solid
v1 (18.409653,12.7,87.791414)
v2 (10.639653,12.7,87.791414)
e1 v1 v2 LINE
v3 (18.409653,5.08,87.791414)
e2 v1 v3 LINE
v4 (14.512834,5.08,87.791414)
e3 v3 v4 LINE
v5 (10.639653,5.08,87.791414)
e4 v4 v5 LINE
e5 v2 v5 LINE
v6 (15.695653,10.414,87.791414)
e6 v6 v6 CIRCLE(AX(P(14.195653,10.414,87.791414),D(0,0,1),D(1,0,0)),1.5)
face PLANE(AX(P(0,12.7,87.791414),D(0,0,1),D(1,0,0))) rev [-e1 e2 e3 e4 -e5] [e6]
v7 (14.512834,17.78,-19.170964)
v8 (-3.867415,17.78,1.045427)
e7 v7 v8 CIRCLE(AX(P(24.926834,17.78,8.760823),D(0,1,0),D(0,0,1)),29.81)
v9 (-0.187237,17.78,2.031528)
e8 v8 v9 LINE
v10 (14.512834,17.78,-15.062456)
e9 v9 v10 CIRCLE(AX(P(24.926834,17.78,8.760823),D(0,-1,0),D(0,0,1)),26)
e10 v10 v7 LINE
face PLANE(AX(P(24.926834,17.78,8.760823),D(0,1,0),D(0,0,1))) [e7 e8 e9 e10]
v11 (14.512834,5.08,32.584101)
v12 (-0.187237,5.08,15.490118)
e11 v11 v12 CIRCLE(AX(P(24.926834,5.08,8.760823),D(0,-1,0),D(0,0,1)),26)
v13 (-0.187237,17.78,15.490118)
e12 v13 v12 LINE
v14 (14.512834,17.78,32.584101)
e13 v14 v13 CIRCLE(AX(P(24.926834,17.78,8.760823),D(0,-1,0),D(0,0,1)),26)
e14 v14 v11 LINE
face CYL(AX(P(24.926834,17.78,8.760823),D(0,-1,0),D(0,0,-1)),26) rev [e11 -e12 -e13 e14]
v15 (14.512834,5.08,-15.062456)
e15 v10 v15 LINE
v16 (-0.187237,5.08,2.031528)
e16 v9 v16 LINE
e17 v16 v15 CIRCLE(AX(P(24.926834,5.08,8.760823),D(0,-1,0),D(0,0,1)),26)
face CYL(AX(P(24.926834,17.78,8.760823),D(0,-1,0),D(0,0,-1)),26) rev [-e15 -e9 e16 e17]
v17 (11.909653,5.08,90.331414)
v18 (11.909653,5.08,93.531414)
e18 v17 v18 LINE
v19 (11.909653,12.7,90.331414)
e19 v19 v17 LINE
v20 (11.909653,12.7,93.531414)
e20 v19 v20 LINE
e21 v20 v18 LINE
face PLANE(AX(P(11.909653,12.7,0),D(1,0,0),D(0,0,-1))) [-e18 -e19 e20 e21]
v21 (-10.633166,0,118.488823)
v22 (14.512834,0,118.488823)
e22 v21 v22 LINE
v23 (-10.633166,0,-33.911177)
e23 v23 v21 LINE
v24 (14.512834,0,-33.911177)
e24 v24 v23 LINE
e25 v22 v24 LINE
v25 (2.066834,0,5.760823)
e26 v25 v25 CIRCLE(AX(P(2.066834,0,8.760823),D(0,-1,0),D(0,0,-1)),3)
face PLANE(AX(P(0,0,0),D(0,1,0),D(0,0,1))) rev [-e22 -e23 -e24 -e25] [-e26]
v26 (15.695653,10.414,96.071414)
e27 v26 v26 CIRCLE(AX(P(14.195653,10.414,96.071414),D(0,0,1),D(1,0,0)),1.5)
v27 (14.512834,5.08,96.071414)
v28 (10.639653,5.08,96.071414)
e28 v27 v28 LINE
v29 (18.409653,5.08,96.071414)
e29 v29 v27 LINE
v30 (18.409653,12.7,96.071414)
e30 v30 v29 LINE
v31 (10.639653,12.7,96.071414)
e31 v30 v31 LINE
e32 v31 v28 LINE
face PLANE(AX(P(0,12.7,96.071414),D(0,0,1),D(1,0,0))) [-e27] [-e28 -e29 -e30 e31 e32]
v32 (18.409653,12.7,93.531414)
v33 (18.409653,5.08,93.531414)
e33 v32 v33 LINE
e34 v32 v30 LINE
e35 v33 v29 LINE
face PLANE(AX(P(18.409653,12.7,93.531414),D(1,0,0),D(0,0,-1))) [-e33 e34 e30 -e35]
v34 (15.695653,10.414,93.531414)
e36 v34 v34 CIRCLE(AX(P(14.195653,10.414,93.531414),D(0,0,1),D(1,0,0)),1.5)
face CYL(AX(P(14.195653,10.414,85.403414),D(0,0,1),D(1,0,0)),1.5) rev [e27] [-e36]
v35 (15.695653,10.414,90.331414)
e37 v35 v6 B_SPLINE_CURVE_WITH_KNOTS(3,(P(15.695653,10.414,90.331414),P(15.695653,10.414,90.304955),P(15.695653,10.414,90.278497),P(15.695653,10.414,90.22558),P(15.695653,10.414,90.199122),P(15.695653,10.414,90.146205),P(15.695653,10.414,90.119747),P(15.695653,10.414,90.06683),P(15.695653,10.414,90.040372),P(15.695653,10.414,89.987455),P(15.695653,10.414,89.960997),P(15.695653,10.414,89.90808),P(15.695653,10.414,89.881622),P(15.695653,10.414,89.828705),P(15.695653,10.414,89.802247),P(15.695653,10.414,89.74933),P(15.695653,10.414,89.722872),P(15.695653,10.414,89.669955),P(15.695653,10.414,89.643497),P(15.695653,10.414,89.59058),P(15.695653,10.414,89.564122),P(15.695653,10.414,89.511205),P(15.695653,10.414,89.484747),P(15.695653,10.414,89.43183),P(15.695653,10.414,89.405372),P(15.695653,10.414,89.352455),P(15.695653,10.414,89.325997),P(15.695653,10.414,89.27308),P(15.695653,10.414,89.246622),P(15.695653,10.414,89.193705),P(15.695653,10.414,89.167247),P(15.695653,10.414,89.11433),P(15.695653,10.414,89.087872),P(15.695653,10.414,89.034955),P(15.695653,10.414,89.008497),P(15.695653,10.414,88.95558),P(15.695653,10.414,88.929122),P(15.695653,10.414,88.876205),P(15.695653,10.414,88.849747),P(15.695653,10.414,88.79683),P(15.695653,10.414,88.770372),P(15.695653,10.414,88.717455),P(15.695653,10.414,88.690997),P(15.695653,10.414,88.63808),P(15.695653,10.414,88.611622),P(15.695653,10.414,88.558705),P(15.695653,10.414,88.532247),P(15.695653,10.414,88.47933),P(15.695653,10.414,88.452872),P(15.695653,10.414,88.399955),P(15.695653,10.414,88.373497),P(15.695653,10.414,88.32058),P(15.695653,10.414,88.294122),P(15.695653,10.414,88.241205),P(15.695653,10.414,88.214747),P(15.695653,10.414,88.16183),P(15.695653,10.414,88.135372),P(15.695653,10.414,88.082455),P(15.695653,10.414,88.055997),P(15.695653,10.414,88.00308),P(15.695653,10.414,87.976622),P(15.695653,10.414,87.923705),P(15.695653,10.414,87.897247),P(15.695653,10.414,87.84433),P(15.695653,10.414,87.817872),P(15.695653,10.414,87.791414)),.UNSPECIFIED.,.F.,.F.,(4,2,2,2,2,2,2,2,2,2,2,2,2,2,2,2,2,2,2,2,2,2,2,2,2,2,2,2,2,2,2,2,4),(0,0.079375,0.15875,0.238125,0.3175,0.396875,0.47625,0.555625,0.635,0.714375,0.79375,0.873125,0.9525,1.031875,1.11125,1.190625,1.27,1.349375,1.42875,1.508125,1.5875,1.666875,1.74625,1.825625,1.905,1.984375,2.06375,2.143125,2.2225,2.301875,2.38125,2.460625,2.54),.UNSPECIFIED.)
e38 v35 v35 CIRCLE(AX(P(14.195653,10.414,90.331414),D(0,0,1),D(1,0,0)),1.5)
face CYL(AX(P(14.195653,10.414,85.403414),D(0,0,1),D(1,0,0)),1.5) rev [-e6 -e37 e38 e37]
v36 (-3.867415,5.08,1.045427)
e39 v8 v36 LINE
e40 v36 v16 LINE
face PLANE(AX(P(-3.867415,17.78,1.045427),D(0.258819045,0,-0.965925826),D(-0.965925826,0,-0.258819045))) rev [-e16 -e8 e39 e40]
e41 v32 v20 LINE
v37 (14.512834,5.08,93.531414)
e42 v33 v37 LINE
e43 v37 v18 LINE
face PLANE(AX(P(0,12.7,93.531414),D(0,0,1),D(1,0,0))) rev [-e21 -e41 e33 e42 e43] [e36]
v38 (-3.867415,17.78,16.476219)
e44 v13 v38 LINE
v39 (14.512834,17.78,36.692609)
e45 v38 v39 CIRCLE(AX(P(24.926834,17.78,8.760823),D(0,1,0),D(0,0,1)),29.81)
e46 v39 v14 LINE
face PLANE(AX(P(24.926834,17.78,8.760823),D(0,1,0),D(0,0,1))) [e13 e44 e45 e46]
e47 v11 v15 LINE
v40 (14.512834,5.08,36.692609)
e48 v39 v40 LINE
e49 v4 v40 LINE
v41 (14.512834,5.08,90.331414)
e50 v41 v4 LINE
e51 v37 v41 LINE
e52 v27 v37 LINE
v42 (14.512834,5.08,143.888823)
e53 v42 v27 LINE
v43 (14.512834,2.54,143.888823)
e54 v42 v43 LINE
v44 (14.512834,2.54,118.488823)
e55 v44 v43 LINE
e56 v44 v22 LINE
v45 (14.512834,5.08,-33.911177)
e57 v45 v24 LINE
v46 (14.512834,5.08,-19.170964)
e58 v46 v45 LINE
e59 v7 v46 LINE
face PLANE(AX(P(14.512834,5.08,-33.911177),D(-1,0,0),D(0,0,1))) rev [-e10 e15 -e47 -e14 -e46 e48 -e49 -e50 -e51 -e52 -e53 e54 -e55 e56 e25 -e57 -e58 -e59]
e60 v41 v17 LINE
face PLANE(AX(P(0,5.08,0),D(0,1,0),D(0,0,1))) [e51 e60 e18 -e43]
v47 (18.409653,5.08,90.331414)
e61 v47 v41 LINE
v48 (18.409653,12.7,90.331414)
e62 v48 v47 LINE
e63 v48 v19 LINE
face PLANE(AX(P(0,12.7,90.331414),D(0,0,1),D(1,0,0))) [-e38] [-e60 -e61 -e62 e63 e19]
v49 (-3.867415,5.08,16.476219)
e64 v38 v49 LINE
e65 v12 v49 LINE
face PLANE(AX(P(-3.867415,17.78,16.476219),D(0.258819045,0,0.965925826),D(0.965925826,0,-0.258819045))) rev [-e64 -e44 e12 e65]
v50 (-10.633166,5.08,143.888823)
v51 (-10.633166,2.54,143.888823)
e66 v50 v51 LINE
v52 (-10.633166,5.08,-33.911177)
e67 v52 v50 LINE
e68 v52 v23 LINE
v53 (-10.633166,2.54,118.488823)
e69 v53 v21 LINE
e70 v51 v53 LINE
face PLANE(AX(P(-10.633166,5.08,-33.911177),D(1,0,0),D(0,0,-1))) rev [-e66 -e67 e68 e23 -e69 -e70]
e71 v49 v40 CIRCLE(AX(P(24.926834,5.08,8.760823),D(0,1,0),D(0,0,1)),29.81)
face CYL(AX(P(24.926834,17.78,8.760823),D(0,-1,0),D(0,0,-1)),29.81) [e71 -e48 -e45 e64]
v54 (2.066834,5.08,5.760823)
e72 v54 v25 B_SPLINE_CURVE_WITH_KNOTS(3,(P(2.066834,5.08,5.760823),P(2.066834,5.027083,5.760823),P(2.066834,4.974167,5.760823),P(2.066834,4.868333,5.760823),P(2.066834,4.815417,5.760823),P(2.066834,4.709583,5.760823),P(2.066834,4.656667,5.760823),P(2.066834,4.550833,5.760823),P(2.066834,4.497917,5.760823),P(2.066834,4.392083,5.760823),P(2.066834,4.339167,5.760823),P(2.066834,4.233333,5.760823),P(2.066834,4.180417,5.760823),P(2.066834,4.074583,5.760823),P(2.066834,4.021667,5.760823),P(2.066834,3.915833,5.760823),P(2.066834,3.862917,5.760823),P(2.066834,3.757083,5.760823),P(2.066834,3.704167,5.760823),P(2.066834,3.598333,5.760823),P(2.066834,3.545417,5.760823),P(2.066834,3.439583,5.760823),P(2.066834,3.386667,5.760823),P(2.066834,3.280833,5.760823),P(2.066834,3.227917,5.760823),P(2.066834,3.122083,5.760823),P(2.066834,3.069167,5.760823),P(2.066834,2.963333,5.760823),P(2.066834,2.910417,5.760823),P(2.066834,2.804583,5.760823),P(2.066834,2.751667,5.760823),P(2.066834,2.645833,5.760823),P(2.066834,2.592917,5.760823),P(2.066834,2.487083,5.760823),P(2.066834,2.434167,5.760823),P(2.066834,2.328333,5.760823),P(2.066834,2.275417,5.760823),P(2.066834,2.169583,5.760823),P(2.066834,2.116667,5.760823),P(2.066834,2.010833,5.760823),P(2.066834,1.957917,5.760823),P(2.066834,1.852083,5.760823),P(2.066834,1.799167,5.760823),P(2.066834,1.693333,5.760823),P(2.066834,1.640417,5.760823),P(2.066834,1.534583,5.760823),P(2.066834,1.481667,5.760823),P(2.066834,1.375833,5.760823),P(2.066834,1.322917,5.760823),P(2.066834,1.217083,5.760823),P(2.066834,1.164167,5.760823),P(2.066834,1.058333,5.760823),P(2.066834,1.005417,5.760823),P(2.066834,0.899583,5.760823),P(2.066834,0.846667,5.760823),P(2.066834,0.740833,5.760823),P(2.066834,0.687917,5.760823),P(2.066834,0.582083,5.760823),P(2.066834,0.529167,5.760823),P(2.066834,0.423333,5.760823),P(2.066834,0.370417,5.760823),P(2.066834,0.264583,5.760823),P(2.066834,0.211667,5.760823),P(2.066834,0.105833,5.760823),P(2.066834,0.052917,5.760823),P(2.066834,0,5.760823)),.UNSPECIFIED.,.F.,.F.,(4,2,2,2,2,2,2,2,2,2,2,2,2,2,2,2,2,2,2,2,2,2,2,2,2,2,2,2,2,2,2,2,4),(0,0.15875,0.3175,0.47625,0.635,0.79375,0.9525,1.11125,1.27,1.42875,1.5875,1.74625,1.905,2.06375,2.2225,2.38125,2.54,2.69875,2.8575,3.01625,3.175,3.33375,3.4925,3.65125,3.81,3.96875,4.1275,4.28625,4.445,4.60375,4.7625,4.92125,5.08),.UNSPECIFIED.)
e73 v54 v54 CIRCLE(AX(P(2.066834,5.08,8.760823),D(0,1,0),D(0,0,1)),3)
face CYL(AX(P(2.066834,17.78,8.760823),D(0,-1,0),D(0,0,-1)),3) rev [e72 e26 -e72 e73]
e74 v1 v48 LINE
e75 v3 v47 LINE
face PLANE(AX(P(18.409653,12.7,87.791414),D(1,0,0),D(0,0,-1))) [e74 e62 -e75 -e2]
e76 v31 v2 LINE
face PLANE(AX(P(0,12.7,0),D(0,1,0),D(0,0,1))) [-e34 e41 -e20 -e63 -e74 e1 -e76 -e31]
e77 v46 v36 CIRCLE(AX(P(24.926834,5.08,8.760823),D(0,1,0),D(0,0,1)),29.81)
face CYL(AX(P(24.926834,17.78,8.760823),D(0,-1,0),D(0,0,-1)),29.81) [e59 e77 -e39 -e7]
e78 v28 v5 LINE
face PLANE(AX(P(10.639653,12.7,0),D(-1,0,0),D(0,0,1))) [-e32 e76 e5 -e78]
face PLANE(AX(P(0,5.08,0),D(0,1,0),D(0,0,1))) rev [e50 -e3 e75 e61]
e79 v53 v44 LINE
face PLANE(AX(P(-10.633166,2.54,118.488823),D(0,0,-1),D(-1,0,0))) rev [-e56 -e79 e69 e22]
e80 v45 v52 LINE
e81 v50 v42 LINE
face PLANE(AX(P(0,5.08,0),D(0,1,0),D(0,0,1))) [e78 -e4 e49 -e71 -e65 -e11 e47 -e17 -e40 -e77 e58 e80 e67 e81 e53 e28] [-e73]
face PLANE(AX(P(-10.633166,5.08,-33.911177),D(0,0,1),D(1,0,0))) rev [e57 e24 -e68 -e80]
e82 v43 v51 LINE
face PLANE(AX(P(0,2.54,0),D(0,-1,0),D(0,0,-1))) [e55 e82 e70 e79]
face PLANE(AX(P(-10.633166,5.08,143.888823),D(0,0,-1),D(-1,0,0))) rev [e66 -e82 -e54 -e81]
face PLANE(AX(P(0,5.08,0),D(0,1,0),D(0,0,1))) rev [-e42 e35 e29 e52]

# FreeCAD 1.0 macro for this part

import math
import FreeCAD as App
import Part
import Sketcher
Q = App.Units.Quantity


def add_polygon(sketch, points):
    """Adds a closed chain of lines whose ends are joined by coincident constraints."""
    first, n = sketch.GeometryCount, len(points)
    for a, b in zip(points, points[1:] + points[:1]):
        sketch.addGeometry(Part.LineSegment(App.Vector(*a, 0), App.Vector(*b, 0)), False)
    for i in range(n):
        sketch.addConstraint(Sketcher.Constraint("Coincident", first + i, 2, first + (i + 1) % n, 1))

doc = App.newDocument("Part")
body = doc.addObject("PartDesign::Body", "Body")

sketch1 = body.newObject("Sketcher::SketchObject", "Sketch")
sketch1.AttachmentSupport = (doc.getObject("XZ_Plane"), [""])
sketch1.MapMode = "FlatFace"
add_polygon(sketch1, [(-11, -34), (-11, 144), (15, 144), (15, -34)])
sketch1.addConstraint(Sketcher.Constraint("Vertical", 0))
sketch1.addConstraint(Sketcher.Constraint("Horizontal", 1))
sketch1.addConstraint(Sketcher.Constraint("Vertical", 2))
sketch1.addConstraint(Sketcher.Constraint("Horizontal", 3))
sketch1.addConstraint(Sketcher.Constraint("DistanceY", 0, 1, 0, 2, Q("7 in")))
sketch1.addConstraint(Sketcher.Constraint("DistanceX", 1, 1, 1, 2, Q("0.99 in")))
sketch1.addConstraint(Sketcher.Constraint("DistanceX", 0, 2, -1, 1, Q("10.633166 mm")))
sketch1.addConstraint(Sketcher.Constraint("DistanceY", -1, 1, 0, 2, Q("143.888823 mm")))
pad1 = body.newObject("PartDesign::Pad", "Pad")
pad1.Profile = sketch1
pad1.Length = Q("0.2 in")
pad1.Reversed = True

sketch2 = body.newObject("Sketcher::SketchObject", "Sketch001")
sketch2.AttachmentSupport = (doc.getObject("XZ_Plane"), [""])
sketch2.MapMode = "FlatFace"
add_polygon(sketch2, [(-11, 144), (-11, 118), (15, 118), (15, 144)])
sketch2.addConstraint(Sketcher.Constraint("Vertical", 0))
sketch2.addConstraint(Sketcher.Constraint("Horizontal", 1))
sketch2.addConstraint(Sketcher.Constraint("Vertical", 2))
sketch2.addConstraint(Sketcher.Constraint("Horizontal", 3))
sketch2.addConstraint(Sketcher.Constraint("DistanceY", 0, 2, 0, 1, Q("1 in")))
sketch2.addConstraint(Sketcher.Constraint("DistanceX", 1, 1, 1, 2, Q("0.99 in")))
sketch2.addConstraint(Sketcher.Constraint("DistanceX", 0, 2, -1, 1, Q("10.633166 mm")))
sketch2.addConstraint(Sketcher.Constraint("DistanceY", -1, 1, 0, 2, Q("118.488823 mm")))
pocket1 = body.newObject("PartDesign::Pocket", "Pocket")
pocket1.Profile = sketch2
pocket1.Length = Q("0.1 in")

sketch3 = body.newObject("Sketcher::SketchObject", "Sketch002")
sketch3.AttachmentSupport = (doc.getObject("XZ_Plane"), [""])
sketch3.MapMode = "FlatFace"
sketch3.AttachmentOffset = App.Placement(App.Vector(0, 0, -0.2 * 25.4), App.Rotation())
sketch3.addGeometry(Part.LineSegment(App.Vector(14.5, -15.1, 0), App.Vector(14.5, -19.2, 0)), False)
sketch3.addGeometry(Part.ArcOfCircle(Part.Circle(App.Vector(24.9, 8.8, 0), App.Vector(0, 0, 1), 29.8), math.radians(-165), math.radians(-110)), False)
sketch3.addGeometry(Part.LineSegment(App.Vector(-3.9, 1, 0), App.Vector(-0.2, 2, 0)), False)
sketch3.addGeometry(Part.ArcOfCircle(Part.Circle(App.Vector(24.9, 8.8, 0), App.Vector(0, 0, 1), 26), math.radians(-165), math.radians(-114)), False)
sketch3.addGeometry(Part.LineSegment(App.Vector(14.5, 36.7, 0), App.Vector(14.5, 32.6, 0)), False)
sketch3.addGeometry(Part.ArcOfCircle(Part.Circle(App.Vector(24.9, 8.8, 0), App.Vector(0, 0, 1), 26), math.radians(114), math.radians(165)), False)
sketch3.addGeometry(Part.LineSegment(App.Vector(-0.2, 15.5, 0), App.Vector(-3.9, 16.5, 0)), False)
sketch3.addGeometry(Part.ArcOfCircle(Part.Circle(App.Vector(24.9, 8.8, 0), App.Vector(0, 0, 1), 29.8), math.radians(110), math.radians(165)), False)
sketch3.addConstraint(Sketcher.Constraint("Coincident", 0, 2, 1, 2))
sketch3.addConstraint(Sketcher.Constraint("Coincident", 1, 1, 2, 1))
sketch3.addConstraint(Sketcher.Constraint("Coincident", 2, 2, 3, 1))
sketch3.addConstraint(Sketcher.Constraint("Coincident", 3, 2, 0, 1))
sketch3.addConstraint(Sketcher.Constraint("Coincident", 4, 2, 5, 1))
sketch3.addConstraint(Sketcher.Constraint("Coincident", 5, 2, 6, 1))
sketch3.addConstraint(Sketcher.Constraint("Coincident", 6, 2, 7, 2))
sketch3.addConstraint(Sketcher.Constraint("Coincident", 7, 1, 4, 1))
sketch3.addConstraint(Sketcher.Constraint("Vertical", 0))
sketch3.addConstraint(Sketcher.Constraint("Vertical", 4))
sketch3.addConstraint(Sketcher.Constraint("Coincident", 3, 3, 1, 3))
sketch3.addConstraint(Sketcher.Constraint("Coincident", 5, 3, 1, 3))
sketch3.addConstraint(Sketcher.Constraint("Coincident", 7, 3, 1, 3))
sketch3.addConstraint(Sketcher.Constraint("Equal", 3, 5))
sketch3.addConstraint(Sketcher.Constraint("Equal", 1, 7))
sketch3.addConstraint(Sketcher.Constraint("Vertical", 3, 2, 4, 2))
sketch3.addConstraint(Sketcher.Constraint("Vertical", 2, 2, 5, 2))
sketch3.addConstraint(Sketcher.Constraint("Vertical", 1, 1, 6, 2))
sketch3.addConstraint(Sketcher.Constraint("Angle", 2, Q("15 deg")))
sketch3.addConstraint(Sketcher.Constraint("Distance", 2, Q("0.15 in")))
sketch3.addConstraint(Sketcher.Constraint("Radius", 1, Q("29.81 mm")))
sketch3.addConstraint(Sketcher.Constraint("DistanceX", 0, 2, 1, 3, Q("0.41 in")))
sketch3.addConstraint(Sketcher.Constraint("DistanceY", -1, 1, 4, 2, Q("32.584101 mm")))
sketch3.addConstraint(Sketcher.Constraint("DistanceY", -1, 1, 5, 2, Q("15.490118 mm")))
sketch3.addConstraint(Sketcher.Constraint("DistanceX", -1, 1, 1, 3, Q("24.926834 mm")))
pad2 = body.newObject("PartDesign::Pad", "Pad001")
pad2.Profile = sketch3
pad2.Length = Q("0.5 in")
pad2.Reversed = True

sketch4 = body.newObject("Sketcher::SketchObject", "Sketch003")
sketch4.AttachmentSupport = (doc.getObject("XZ_Plane"), [""])
sketch4.MapMode = "FlatFace"
sketch4.addGeometry(Part.Circle(App.Vector(2.1, 8.8, 0), App.Vector(0, 0, 1), 3), False)
sketch4.addConstraint(Sketcher.Constraint("Diameter", 0, Q("6 mm")))
sketch4.addConstraint(Sketcher.Constraint("DistanceX", -1, 1, 0, 3, Q("2.066834 mm")))
sketch4.addConstraint(Sketcher.Constraint("DistanceY", -1, 1, 0, 3, Q("8.760823 mm")))
pocket2 = body.newObject("PartDesign::Pocket", "Pocket001")
pocket2.Profile = sketch4
pocket2.Type = "ThroughAll"

sketch5 = body.newObject("Sketcher::SketchObject", "Sketch004")
sketch5.AttachmentSupport = (doc.getObject("XZ_Plane"), [""])
sketch5.MapMode = "FlatFace"
sketch5.AttachmentOffset = App.Placement(App.Vector(0, 0, -0.2 * 25.4), App.Rotation())
add_polygon(sketch5, [(18.4, 90.3), (18.4, 87.8), (10.6, 87.8), (10.6, 96.1), (18.4, 96.1), (18.4, 93.5), (11.9, 93.5), (11.9, 90.3)])
sketch5.addConstraint(Sketcher.Constraint("Vertical", 0))
sketch5.addConstraint(Sketcher.Constraint("Horizontal", 1))
sketch5.addConstraint(Sketcher.Constraint("Vertical", 2))
sketch5.addConstraint(Sketcher.Constraint("Horizontal", 3))
sketch5.addConstraint(Sketcher.Constraint("Vertical", 4))
sketch5.addConstraint(Sketcher.Constraint("Horizontal", 5))
sketch5.addConstraint(Sketcher.Constraint("Vertical", 6))
sketch5.addConstraint(Sketcher.Constraint("Horizontal", 7))
sketch5.addConstraint(Sketcher.Constraint("Vertical", 0, 2, 3, 2))
sketch5.addConstraint(Sketcher.Constraint("Equal", 0, 4))
sketch5.addConstraint(Sketcher.Constraint("DistanceY", 0, 2, 0, 1, Q("0.1 in")))
sketch5.addConstraint(Sketcher.Constraint("DistanceX", 2, 2, 5, 2, Q("0.05 in")))
sketch5.addConstraint(Sketcher.Constraint("DistanceX", 1, 2, 1, 1, Q("7.77 mm")))
sketch5.addConstraint(Sketcher.Constraint("DistanceY", 2, 1, 2, 2, Q("8.28 mm")))
sketch5.addConstraint(Sketcher.Constraint("DistanceX", -1, 1, 0, 2, Q("18.409653 mm")))
sketch5.addConstraint(Sketcher.Constraint("DistanceY", -1, 1, 0, 2, Q("87.791414 mm")))
pad3 = body.newObject("PartDesign::Pad", "Pad002")
pad3.Profile = sketch5
pad3.Length = Q("0.3 in")
pad3.Reversed = True

sketch6 = body.newObject("Sketcher::SketchObject", "Sketch005")
sketch6.AttachmentSupport = (doc.getObject("XY_Plane"), [""])
sketch6.MapMode = "FlatFace"
sketch6.AttachmentOffset = App.Placement(App.Vector(0, 0, 96.071414), App.Rotation())
sketch6.addGeometry(Part.Circle(App.Vector(14.2, 10.4, 0), App.Vector(0, 0, 1), 1.5), False)
sketch6.addConstraint(Sketcher.Constraint("Diameter", 0, Q("3 mm")))
sketch6.addConstraint(Sketcher.Constraint("DistanceY", -1, 1, 0, 3, Q("0.41 in")))
sketch6.addConstraint(Sketcher.Constraint("DistanceX", -1, 1, 0, 3, Q("14.195653 mm")))
pocket3 = body.newObject("PartDesign::Pocket", "Pocket002")
pocket3.Profile = sketch6
pocket3.Length = Q("0.42 in")

doc.recompute()
